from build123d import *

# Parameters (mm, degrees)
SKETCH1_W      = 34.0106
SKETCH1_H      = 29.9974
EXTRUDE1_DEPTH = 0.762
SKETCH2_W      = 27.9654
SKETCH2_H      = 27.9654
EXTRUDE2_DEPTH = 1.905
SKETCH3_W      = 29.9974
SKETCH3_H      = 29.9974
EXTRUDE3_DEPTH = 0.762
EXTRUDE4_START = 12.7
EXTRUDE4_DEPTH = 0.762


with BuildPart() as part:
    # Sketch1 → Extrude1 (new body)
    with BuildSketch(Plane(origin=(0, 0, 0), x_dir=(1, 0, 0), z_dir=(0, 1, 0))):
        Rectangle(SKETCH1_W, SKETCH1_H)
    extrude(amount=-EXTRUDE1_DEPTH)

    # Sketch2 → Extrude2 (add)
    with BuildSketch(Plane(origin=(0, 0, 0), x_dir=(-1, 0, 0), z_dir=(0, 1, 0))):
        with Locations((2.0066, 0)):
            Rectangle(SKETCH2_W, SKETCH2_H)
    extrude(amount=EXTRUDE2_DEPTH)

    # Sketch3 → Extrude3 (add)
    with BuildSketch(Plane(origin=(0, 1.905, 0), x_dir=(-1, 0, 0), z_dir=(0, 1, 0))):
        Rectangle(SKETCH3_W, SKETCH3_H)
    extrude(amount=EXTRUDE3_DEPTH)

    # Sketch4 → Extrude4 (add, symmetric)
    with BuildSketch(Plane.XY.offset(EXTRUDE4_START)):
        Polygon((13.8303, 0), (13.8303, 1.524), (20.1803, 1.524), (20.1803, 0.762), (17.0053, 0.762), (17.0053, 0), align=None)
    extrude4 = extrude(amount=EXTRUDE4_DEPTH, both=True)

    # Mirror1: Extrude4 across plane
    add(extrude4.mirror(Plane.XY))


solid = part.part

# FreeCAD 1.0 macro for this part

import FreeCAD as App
import Part
import Sketcher
from FreeCAD import Vector
Q = App.Units.Quantity

doc = App.newDocument("Part")
body = doc.addObject("PartDesign::Body", "Body")

sketch1 = body.newObject("Sketcher::SketchObject", "Sketch")
sketch1.AttachmentSupport = (doc.getObject("XZ_Plane"), [""])
sketch1.MapMode = "FlatFace"
sketch1.addGeometry([
    Part.LineSegment(Vector(-17, -15, 0), Vector(-17, 15, 0)),
    Part.LineSegment(Vector(-17, 15, 0), Vector(17, 15, 0)),
    Part.LineSegment(Vector(17, 15, 0), Vector(17, -15, 0)),
    Part.LineSegment(Vector(17, -15, 0), Vector(-17, -15, 0)),
], False)
sketch1.addConstraint([
    Sketcher.Constraint("Coincident", 0, 2, 1, 1),
    Sketcher.Constraint("Coincident", 1, 2, 2, 1),
    Sketcher.Constraint("Coincident", 2, 2, 3, 1),
    Sketcher.Constraint("Coincident", 3, 2, 0, 1),
    Sketcher.Constraint("Vertical", 0),
    Sketcher.Constraint("Horizontal", 1),
    Sketcher.Constraint("Vertical", 2),
    Sketcher.Constraint("Horizontal", 3),
    Sketcher.Constraint("Symmetric", 0, 2, 2, 2, -1, 1),
    Sketcher.Constraint("DistanceX", 1, 1, 1, 2, Q("1.339 in")),
    Sketcher.Constraint("DistanceY", 0, 1, 0, 2, Q("1.181 in")),
])
pad1 = body.newObject("PartDesign::Pad", "Pad")
pad1.Profile = sketch1
pad1.Length = Q("0.03 in")

sketch2 = body.newObject("Sketcher::SketchObject", "Sketch001")
sketch2.AttachmentSupport = (doc.getObject("XZ_Plane"), [""])
sketch2.MapMode = "FlatFace"
sketch2.addGeometry([
    Part.LineSegment(Vector(12, 14, 0), Vector(12, -14, 0)),
    Part.LineSegment(Vector(12, -14, 0), Vector(-16, -14, 0)),
    Part.LineSegment(Vector(-16, -14, 0), Vector(-16, 14, 0)),
    Part.LineSegment(Vector(-16, 14, 0), Vector(12, 14, 0)),
], False)
sketch2.addConstraint([
    Sketcher.Constraint("Coincident", 0, 2, 1, 1),
    Sketcher.Constraint("Coincident", 1, 2, 2, 1),
    Sketcher.Constraint("Coincident", 2, 2, 3, 1),
    Sketcher.Constraint("Coincident", 3, 2, 0, 1),
    Sketcher.Constraint("Vertical", 0),
    Sketcher.Constraint("Horizontal", 1),
    Sketcher.Constraint("Vertical", 2),
    Sketcher.Constraint("Horizontal", 3),
    Sketcher.Constraint("Equal", 3, 0),
    Sketcher.Constraint("DistanceX", 1, 2, 1, 1, Q("1.101 in")),
    Sketcher.Constraint("DistanceX", -1, 1, 0, 2, Q("0.4715 in")),
    Sketcher.Constraint("DistanceY", 0, 2, -1, 1, Q("0.5505 in")),
])
pad2 = body.newObject("PartDesign::Pad", "Pad001")
pad2.Profile = sketch2
pad2.Length = Q("0.075 in")
pad2.Reversed = True

sketch3 = body.newObject("Sketcher::SketchObject", "Sketch002")
sketch3.AttachmentSupport = (doc.getObject("XZ_Plane"), [""])
sketch3.MapMode = "FlatFace"
sketch3.AttachmentOffset = App.Placement(Vector(0, 0, -0.075 * 25.4), App.Rotation())
sketch3.addGeometry([
    Part.LineSegment(Vector(15, 15, 0), Vector(15, -15, 0)),
    Part.LineSegment(Vector(15, -15, 0), Vector(-15, -15, 0)),
    Part.LineSegment(Vector(-15, -15, 0), Vector(-15, 15, 0)),
    Part.LineSegment(Vector(-15, 15, 0), Vector(15, 15, 0)),
], False)
sketch3.addConstraint([
    Sketcher.Constraint("Coincident", 0, 2, 1, 1),
    Sketcher.Constraint("Coincident", 1, 2, 2, 1),
    Sketcher.Constraint("Coincident", 2, 2, 3, 1),
    Sketcher.Constraint("Coincident", 3, 2, 0, 1),
    Sketcher.Constraint("Vertical", 0),
    Sketcher.Constraint("Horizontal", 1),
    Sketcher.Constraint("Vertical", 2),
    Sketcher.Constraint("Horizontal", 3),
    Sketcher.Constraint("Symmetric", 0, 2, 2, 2, -1, 1),
    Sketcher.Constraint("Equal", 3, 0),
    Sketcher.Constraint("DistanceX", 1, 2, 1, 1, Q("1.181 in")),
])
pad3 = body.newObject("PartDesign::Pad", "Pad002")
pad3.Profile = sketch3
pad3.Length = Q("0.03 in")
pad3.Reversed = True

sketch4 = body.newObject("Sketcher::SketchObject", "Sketch003")
sketch4.AttachmentSupport = (doc.getObject("XY_Plane"), [""])
sketch4.MapMode = "FlatFace"
sketch4.AttachmentOffset = App.Placement(Vector(0, 0, 0.5 * 25.4), App.Rotation())
sketch4.addGeometry([
    Part.LineSegment(Vector(13.8, 1.5, 0), Vector(13.8, 0, 0)),
    Part.LineSegment(Vector(13.8, 0, 0), Vector(17, 0, 0)),
    Part.LineSegment(Vector(17, 0, 0), Vector(17, 0.8, 0)),
    Part.LineSegment(Vector(17, 0.8, 0), Vector(20.2, 0.8, 0)),
    Part.LineSegment(Vector(20.2, 0.8, 0), Vector(20.2, 1.5, 0)),
    Part.LineSegment(Vector(20.2, 1.5, 0), Vector(13.8, 1.5, 0)),
], False)
sketch4.addConstraint([
    Sketcher.Constraint("Coincident", 0, 2, 1, 1),
    Sketcher.Constraint("Coincident", 1, 2, 2, 1),
    Sketcher.Constraint("Coincident", 2, 2, 3, 1),
    Sketcher.Constraint("Coincident", 3, 2, 4, 1),
    Sketcher.Constraint("Coincident", 4, 2, 5, 1),
    Sketcher.Constraint("Coincident", 5, 2, 0, 1),
    Sketcher.Constraint("Vertical", 0),
    Sketcher.Constraint("Horizontal", 1),
    Sketcher.Constraint("Vertical", 2),
    Sketcher.Constraint("Horizontal", 3),
    Sketcher.Constraint("Vertical", 4),
    Sketcher.Constraint("Horizontal", 5),
    Sketcher.Constraint("PointOnObject", 0, 2, -1),
    Sketcher.Constraint("Equal", 1, 3),
    Sketcher.Constraint("Equal", 2, 4),
    Sketcher.Constraint("DistanceX", 5, 2, 5, 1, Q("0.25 in")),
    Sketcher.Constraint("DistanceY", 0, 2, 0, 1, Q("0.06 in")),
    Sketcher.Constraint("DistanceX", -1, 1, 0, 2, Q("0.5445 in")),
])
pad4 = body.newObject("PartDesign::Pad", "Pad003")
pad4.Profile = sketch4
pad4.Length = Q("0.06 in")
pad4.Midplane = True
doc.recompute()

mirrored = body.newObject("PartDesign::Mirrored", "Mirrored")
mirrored.Originals = [pad4]
mirrored.MirrorPlane = (doc.getObject("XY_Plane"), [""])
body.Tip = mirrored

doc.recompute()
